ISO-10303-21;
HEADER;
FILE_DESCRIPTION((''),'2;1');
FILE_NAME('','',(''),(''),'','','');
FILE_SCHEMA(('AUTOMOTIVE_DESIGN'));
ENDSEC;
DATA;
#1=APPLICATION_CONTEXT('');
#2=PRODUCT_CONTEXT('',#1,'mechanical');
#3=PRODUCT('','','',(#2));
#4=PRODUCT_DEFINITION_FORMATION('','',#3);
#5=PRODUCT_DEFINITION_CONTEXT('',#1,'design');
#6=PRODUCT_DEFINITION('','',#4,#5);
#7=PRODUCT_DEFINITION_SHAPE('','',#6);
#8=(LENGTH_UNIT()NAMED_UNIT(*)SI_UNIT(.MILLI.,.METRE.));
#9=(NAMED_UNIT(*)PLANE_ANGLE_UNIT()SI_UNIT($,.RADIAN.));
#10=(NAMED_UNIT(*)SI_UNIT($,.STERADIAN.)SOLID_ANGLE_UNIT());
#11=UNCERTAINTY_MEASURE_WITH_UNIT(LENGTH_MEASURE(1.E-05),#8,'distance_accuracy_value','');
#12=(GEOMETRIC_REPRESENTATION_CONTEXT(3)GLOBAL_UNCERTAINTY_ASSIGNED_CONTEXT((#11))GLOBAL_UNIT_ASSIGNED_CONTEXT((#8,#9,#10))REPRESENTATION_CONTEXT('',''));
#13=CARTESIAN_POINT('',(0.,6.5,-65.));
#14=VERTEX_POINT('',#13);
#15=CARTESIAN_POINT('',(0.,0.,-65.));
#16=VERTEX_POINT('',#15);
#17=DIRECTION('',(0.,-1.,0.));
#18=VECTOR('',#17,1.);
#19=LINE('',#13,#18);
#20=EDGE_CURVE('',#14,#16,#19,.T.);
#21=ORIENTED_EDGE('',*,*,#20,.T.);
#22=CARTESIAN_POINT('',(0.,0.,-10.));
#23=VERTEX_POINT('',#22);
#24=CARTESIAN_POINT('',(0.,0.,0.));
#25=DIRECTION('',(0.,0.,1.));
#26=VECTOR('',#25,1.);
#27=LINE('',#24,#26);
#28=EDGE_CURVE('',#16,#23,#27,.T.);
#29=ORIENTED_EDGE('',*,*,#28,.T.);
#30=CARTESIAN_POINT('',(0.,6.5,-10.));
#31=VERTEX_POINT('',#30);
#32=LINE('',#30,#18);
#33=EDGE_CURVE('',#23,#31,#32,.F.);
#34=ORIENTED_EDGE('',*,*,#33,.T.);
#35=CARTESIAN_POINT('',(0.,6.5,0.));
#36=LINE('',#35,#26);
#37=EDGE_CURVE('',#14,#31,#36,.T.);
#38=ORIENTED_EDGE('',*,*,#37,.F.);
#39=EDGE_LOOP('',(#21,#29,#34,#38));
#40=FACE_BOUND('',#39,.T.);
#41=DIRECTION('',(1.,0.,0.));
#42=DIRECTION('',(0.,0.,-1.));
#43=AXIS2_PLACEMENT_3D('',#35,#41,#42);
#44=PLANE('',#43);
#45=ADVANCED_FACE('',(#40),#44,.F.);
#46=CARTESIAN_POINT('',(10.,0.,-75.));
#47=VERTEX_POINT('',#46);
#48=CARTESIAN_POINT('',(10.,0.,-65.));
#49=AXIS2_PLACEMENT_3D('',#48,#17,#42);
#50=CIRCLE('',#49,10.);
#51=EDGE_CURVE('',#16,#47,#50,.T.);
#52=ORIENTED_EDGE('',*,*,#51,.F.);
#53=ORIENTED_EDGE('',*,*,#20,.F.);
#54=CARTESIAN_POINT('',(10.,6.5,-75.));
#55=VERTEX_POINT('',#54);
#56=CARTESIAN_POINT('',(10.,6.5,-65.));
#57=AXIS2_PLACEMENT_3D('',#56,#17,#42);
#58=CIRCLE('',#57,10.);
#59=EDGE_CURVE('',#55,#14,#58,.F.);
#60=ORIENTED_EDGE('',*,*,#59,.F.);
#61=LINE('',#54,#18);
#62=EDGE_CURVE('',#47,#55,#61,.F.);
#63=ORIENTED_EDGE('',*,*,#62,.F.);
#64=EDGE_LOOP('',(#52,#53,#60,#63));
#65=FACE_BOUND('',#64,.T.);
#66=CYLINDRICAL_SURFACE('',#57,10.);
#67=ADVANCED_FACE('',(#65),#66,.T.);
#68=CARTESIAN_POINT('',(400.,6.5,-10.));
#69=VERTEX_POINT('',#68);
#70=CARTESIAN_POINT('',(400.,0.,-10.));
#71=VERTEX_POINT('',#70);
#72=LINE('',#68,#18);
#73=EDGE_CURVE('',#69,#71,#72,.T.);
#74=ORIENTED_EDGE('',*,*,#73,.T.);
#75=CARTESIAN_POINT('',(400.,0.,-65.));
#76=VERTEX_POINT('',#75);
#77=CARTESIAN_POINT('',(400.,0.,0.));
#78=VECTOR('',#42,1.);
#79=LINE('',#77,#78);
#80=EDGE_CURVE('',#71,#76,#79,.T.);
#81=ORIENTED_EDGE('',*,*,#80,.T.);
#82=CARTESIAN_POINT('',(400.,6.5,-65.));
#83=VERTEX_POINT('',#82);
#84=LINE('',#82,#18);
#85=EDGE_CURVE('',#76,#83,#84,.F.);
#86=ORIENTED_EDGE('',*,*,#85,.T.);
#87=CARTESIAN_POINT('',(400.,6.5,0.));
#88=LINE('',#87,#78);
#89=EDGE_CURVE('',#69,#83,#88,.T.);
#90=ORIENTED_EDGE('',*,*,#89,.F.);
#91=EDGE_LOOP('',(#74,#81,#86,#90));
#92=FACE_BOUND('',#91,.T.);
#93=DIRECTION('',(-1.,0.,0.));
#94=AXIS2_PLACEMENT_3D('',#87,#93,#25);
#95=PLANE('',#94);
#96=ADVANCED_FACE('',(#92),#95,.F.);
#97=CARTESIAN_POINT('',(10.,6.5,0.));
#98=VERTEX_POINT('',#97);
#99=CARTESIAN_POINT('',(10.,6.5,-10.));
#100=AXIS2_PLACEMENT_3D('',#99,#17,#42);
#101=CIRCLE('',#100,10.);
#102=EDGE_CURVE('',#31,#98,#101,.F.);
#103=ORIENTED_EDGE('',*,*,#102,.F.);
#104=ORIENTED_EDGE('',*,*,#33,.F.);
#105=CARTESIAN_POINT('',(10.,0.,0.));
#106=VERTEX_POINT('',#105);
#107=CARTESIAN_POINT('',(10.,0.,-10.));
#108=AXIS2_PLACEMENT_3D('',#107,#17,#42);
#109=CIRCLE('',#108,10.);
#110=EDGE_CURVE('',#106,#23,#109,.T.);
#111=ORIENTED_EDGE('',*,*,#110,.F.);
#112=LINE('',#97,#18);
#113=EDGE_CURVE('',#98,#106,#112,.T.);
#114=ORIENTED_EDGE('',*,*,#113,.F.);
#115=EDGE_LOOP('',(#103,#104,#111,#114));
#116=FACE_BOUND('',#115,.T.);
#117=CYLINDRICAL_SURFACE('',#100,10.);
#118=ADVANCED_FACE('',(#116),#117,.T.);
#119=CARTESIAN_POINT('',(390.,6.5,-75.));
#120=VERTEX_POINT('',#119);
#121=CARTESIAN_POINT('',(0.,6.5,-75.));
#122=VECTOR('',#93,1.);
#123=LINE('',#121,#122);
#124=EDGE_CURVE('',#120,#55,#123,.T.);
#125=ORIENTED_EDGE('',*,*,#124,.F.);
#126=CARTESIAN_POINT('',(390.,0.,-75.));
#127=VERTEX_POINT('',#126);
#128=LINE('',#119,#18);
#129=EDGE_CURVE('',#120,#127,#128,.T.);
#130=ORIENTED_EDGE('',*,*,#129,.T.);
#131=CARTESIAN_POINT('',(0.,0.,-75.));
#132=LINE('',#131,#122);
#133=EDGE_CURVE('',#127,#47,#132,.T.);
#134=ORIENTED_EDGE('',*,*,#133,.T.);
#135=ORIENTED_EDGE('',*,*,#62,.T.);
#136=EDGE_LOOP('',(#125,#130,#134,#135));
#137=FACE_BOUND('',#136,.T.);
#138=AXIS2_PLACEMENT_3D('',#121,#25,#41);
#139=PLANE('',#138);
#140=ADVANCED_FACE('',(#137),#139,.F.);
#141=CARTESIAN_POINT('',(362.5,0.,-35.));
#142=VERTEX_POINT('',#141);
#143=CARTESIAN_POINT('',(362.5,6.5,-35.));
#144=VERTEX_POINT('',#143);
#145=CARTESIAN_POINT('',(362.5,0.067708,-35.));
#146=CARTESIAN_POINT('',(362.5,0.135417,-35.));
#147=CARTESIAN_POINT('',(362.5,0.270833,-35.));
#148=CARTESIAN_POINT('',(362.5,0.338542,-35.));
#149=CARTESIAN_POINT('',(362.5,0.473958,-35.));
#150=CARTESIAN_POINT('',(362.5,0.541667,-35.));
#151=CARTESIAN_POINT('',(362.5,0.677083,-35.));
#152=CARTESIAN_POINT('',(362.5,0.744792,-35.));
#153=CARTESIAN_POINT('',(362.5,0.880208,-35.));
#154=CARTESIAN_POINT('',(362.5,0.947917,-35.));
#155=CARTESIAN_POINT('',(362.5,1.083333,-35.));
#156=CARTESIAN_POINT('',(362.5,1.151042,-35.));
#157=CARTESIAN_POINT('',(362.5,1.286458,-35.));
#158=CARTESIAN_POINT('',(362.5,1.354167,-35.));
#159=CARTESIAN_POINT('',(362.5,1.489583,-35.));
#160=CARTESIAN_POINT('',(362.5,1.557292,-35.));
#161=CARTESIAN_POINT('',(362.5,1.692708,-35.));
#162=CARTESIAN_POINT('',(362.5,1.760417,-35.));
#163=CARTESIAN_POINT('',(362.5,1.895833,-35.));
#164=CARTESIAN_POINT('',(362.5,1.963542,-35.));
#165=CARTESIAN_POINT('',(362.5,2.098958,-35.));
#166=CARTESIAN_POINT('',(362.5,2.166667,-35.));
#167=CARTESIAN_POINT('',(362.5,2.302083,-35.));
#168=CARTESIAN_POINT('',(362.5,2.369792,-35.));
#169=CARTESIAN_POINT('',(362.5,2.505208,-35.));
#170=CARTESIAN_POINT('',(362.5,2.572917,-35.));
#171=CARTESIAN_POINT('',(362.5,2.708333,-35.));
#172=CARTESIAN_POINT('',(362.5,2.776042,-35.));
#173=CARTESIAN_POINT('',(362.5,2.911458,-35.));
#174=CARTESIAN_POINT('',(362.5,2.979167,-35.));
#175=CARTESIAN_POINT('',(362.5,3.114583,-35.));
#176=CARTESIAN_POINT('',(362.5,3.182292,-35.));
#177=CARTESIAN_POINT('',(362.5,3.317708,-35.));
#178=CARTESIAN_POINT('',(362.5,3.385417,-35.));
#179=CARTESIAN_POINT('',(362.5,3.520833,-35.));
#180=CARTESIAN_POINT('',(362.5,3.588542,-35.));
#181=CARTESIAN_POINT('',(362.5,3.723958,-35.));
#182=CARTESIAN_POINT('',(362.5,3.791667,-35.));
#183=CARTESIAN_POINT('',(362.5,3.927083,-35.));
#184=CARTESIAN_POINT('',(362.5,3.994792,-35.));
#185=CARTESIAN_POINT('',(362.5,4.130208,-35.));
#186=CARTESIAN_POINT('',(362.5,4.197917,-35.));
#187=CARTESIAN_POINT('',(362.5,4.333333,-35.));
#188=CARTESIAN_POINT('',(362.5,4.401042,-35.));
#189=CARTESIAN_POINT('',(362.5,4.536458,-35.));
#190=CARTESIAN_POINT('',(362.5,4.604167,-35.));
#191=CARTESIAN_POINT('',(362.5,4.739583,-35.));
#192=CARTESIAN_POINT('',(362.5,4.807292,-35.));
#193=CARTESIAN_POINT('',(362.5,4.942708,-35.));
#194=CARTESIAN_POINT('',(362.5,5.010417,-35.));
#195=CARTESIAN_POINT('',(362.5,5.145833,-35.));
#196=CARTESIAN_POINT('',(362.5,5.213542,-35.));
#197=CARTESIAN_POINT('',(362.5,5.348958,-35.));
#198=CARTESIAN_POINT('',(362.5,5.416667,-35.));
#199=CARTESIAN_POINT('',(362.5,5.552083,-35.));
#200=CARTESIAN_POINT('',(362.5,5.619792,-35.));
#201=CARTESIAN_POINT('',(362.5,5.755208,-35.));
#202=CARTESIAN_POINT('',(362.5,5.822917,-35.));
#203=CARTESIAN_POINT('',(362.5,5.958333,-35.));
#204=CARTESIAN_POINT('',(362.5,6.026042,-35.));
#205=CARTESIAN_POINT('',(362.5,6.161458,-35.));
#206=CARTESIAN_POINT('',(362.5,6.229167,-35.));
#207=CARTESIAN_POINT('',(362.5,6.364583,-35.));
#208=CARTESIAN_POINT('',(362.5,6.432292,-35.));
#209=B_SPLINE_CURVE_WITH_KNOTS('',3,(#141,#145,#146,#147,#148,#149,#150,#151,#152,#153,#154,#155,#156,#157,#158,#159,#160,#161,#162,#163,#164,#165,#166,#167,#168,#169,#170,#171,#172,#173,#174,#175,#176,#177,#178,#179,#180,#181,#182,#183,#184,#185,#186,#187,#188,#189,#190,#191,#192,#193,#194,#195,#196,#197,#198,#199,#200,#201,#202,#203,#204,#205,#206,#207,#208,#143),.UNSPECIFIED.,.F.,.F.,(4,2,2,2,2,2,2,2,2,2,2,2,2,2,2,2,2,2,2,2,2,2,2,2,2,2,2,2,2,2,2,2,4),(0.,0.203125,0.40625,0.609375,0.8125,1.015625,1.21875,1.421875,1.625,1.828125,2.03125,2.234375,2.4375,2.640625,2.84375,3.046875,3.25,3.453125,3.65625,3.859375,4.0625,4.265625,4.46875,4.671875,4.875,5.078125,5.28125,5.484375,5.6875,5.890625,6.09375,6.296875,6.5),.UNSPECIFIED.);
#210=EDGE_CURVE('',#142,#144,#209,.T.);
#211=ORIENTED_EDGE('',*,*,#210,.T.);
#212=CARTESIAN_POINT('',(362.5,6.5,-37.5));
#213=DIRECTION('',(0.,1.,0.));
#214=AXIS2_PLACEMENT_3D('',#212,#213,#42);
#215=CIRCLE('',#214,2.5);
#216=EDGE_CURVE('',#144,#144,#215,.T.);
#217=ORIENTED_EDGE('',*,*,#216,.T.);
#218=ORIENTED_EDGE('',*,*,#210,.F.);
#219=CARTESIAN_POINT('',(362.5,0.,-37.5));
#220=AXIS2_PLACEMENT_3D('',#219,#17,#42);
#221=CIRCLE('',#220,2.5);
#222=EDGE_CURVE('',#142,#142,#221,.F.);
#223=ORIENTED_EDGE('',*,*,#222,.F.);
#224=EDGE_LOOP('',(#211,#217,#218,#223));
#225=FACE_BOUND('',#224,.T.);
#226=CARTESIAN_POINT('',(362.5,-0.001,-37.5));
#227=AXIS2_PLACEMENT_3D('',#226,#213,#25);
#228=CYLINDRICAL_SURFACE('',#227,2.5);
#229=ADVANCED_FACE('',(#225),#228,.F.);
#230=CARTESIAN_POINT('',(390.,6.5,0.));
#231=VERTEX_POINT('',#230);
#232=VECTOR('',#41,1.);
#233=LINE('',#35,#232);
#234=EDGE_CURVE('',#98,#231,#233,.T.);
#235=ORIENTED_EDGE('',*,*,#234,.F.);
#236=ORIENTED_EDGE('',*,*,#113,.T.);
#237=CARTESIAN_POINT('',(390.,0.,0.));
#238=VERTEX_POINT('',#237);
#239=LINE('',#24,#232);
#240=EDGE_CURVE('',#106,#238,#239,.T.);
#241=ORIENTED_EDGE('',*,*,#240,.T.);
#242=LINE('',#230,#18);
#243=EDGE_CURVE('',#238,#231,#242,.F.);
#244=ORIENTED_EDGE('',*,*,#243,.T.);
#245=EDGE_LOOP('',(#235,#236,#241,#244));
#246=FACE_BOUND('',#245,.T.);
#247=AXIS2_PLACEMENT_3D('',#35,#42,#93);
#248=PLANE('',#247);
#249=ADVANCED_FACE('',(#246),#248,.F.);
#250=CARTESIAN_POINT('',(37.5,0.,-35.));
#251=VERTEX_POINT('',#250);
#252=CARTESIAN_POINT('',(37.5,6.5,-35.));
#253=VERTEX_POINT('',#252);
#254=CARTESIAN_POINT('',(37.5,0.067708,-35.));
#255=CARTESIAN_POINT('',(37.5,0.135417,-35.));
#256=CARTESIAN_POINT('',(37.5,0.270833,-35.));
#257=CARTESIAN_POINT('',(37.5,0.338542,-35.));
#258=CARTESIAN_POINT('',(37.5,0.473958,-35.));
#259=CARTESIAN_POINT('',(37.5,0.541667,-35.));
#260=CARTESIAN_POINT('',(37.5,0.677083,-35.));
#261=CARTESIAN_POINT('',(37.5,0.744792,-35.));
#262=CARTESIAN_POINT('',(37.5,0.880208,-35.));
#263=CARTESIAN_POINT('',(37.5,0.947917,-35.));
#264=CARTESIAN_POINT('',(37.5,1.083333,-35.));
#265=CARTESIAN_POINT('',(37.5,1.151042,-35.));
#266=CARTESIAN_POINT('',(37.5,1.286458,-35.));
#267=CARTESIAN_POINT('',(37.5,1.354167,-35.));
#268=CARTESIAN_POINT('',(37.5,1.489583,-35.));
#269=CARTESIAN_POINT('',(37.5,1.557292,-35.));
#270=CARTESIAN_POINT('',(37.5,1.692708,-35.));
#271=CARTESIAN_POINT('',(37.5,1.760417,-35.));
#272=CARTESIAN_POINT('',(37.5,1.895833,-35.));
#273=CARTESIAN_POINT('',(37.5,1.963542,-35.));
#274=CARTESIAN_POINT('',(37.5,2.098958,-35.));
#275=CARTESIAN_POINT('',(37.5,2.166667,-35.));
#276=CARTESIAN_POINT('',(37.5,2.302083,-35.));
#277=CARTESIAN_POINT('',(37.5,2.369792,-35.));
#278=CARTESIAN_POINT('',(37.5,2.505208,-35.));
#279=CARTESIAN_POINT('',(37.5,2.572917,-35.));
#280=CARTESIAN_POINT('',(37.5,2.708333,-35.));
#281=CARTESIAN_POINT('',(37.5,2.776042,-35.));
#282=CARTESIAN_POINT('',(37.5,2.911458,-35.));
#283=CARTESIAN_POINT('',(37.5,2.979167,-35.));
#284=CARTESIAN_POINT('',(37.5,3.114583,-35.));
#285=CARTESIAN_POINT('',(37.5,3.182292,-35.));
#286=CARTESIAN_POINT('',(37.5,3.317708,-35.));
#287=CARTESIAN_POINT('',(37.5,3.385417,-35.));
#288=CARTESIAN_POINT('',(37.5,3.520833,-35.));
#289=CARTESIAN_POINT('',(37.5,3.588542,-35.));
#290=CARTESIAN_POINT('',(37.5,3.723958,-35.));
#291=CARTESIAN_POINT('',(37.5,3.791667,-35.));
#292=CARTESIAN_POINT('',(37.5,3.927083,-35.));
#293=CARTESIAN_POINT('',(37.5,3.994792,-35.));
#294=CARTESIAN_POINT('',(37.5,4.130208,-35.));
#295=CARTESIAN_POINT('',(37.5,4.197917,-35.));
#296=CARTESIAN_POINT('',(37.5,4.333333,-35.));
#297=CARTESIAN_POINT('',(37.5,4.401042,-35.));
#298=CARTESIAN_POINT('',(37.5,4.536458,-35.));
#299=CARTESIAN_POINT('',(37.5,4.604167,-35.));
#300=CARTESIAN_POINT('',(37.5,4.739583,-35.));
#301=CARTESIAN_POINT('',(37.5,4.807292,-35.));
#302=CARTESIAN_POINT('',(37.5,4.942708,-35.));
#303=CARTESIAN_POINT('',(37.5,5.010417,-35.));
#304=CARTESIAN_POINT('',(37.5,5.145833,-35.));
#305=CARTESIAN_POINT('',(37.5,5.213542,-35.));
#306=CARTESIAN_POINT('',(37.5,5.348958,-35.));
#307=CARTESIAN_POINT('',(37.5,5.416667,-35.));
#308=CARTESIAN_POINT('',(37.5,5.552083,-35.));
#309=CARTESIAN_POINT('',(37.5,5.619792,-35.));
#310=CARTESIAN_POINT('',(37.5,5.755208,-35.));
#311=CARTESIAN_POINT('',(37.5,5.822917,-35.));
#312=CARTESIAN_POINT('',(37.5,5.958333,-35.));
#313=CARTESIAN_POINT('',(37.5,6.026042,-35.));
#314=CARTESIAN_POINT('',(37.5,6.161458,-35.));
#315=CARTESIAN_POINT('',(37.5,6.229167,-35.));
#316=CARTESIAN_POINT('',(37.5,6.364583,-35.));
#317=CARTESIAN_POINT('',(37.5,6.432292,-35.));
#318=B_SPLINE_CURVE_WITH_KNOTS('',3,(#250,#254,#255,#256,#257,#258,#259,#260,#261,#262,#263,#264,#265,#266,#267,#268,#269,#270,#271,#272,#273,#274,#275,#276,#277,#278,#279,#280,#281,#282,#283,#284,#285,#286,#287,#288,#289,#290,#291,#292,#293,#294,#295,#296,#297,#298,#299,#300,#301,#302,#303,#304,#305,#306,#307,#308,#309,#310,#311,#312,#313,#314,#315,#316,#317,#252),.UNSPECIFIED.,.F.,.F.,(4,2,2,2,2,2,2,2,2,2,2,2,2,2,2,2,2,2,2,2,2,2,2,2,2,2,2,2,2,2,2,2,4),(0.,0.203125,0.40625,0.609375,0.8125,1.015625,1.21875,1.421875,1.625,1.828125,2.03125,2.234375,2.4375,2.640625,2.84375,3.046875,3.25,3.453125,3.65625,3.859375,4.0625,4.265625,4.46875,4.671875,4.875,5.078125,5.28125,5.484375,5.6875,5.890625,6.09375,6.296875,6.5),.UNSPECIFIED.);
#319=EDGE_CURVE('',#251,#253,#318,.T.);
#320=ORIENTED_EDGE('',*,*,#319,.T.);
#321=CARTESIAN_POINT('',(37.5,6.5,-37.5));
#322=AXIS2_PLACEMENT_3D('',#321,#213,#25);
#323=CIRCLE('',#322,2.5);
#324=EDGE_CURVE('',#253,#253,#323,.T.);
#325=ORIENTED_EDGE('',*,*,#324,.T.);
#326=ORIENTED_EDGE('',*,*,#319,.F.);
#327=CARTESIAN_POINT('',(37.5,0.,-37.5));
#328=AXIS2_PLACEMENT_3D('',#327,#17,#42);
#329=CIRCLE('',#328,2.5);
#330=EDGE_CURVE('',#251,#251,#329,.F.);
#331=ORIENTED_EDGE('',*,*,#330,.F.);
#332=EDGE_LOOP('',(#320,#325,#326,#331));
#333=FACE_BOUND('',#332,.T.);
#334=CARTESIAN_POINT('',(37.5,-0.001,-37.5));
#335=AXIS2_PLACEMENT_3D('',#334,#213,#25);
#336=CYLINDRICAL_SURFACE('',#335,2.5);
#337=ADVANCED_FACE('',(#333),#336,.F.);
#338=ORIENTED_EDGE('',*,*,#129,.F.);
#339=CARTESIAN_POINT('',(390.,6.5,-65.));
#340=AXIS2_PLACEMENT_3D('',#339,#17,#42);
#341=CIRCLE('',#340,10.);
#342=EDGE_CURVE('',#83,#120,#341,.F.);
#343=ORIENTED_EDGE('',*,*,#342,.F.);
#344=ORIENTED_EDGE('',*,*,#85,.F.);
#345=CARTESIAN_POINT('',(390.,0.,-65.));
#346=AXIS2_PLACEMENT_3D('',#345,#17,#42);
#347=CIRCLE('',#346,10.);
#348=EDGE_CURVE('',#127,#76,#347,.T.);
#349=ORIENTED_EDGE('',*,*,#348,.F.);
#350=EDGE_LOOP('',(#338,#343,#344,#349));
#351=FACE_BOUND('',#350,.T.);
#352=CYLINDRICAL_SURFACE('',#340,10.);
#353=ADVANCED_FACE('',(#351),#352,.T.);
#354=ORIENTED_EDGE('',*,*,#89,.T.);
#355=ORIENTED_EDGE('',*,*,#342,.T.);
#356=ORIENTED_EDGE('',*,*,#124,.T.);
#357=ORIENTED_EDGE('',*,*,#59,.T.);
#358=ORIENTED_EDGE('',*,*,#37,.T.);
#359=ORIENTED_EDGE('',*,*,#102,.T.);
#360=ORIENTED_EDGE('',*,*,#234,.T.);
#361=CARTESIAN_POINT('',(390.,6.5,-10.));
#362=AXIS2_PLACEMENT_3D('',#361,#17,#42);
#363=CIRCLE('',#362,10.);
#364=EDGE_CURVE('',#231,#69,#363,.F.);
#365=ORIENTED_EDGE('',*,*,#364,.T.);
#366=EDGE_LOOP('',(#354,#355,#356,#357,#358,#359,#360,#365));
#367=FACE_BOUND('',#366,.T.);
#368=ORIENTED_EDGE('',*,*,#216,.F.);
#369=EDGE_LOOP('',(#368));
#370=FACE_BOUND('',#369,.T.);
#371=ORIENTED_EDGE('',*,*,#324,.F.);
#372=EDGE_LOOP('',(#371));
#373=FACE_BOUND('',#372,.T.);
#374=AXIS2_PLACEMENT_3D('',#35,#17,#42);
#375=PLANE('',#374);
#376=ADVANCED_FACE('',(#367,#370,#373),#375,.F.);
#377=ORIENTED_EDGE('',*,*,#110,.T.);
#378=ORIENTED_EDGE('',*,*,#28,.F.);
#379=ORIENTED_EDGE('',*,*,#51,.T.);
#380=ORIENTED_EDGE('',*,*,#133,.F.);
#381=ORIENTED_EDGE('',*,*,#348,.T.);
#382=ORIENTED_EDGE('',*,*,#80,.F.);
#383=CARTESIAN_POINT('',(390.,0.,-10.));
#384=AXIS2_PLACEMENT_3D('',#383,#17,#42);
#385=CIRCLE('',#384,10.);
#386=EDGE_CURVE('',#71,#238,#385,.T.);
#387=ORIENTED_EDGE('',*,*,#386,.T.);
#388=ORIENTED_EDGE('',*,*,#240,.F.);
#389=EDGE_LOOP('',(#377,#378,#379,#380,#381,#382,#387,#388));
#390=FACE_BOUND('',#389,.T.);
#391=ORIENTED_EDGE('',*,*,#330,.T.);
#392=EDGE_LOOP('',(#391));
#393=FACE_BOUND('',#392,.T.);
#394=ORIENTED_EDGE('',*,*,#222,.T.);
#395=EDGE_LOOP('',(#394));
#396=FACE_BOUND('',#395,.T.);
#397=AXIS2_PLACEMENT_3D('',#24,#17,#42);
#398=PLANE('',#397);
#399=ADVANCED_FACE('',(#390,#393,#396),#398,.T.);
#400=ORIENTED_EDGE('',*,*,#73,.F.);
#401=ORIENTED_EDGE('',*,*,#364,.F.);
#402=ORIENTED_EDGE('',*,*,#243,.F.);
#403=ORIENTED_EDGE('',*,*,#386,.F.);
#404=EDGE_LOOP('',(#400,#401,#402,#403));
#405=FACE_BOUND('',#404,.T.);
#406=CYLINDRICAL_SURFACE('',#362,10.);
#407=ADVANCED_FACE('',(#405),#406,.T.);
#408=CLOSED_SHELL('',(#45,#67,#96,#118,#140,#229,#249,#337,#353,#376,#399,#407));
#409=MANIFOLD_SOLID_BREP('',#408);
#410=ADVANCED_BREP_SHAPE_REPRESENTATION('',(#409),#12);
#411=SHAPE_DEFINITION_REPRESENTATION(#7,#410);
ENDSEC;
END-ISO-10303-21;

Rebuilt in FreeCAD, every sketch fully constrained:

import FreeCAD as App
import Part
import Sketcher

V = App.Vector
Q = App.Units.Quantity


def edges_at(feature, points):
    """Names of the edges that pass closest to the given points."""
    edges = feature.Shape.Edges
    near = lambda p: min(range(len(edges)), key=lambda i: edges[i].distToShape(Part.Vertex(*p))[0])
    return sorted({f"Edge{near(p) + 1}" for p in points})

doc = App.newDocument("Part")
body = doc.addObject("PartDesign::Body", "Body")

sketch1 = body.newObject("Sketcher::SketchObject", "Sketch")
sketch1.AttachmentSupport = (doc.getObject("XZ_Plane"), [""])
sketch1.MapMode = "FlatFace"
sketch1.addGeometry([
    Part.LineSegment(V(0, -75, 0), V(0, 0, 0)),
    Part.LineSegment(V(0, 0, 0), V(400, 0, 0)),
    Part.LineSegment(V(400, 0, 0), V(400, -75, 0)),
    Part.LineSegment(V(400, -75, 0), V(0, -75, 0)),
], False)
sketch1.addConstraint([
    Sketcher.Constraint("Coincident", 0, 2, 1, 1),
    Sketcher.Constraint("Coincident", 1, 2, 2, 1),
    Sketcher.Constraint("Coincident", 2, 2, 3, 1),
    Sketcher.Constraint("Coincident", 3, 2, 0, 1),
    Sketcher.Constraint("Vertical", 0),
    Sketcher.Constraint("Horizontal", 1),
    Sketcher.Constraint("Vertical", 2),
    Sketcher.Constraint("Horizontal", 3),
    Sketcher.Constraint("Coincident", 0, 2, -1, 1),
    Sketcher.Constraint("DistanceX", 1, 1, 1, 2, Q("400 mm")),
    Sketcher.Constraint("DistanceY", 0, 1, 0, 2, Q("75 mm")),
])
pad1 = body.newObject("PartDesign::Pad", "Pad")
pad1.Profile = sketch1
pad1.Length = 6.5
pad1.Reversed = True
doc.recompute()

fillet = body.newObject("PartDesign::Fillet", "Fillet")
fillet.Base = (pad1, edges_at(pad1, [
    (0, 3.25, -75),
    (400, 3.25, -75),
    (400, 3.25, 0),
    (0, 3.25, 0),
]))
fillet.Radius = 10

sketch2 = body.newObject("Sketcher::SketchObject", "Sketch001")
sketch2.AttachmentSupport = (doc.getObject("XZ_Plane"), [""])
sketch2.MapMode = "FlatFace"
sketch2.AttachmentOffset = App.Placement(V(0, 0, -6.5), App.Rotation())
sketch2.addGeometry(Part.Circle(V(37.5, -37.5, 0), V(0, 0, 1), 2.5), False)
sketch2.addConstraint([
    Sketcher.Constraint("Diameter", 0, Q("5 mm")),
    Sketcher.Constraint("DistanceX", -1, 1, 0, 3, Q("37.5 mm")),
    Sketcher.Constraint("DistanceY", 0, 3, -1, 1, Q("37.5 mm")),
])
pocket1 = body.newObject("PartDesign::Pocket", "Pocket")
pocket1.Profile = sketch2
pocket1.Type = "UpToFirst"
pocket1.Reversed = True

sketch3 = body.newObject("Sketcher::SketchObject", "Sketch002")
sketch3.AttachmentSupport = (doc.getObject("XZ_Plane"), [""])
sketch3.MapMode = "FlatFace"
sketch3.AttachmentOffset = App.Placement(V(0, 0, -6.5), App.Rotation())
sketch3.addGeometry(Part.Circle(V(362.5, -37.5, 0), V(0, 0, 1), 2.5), False)
sketch3.addConstraint([
    Sketcher.Constraint("Diameter", 0, Q("5 mm")),
    Sketcher.Constraint("DistanceX", -1, 1, 0, 3, Q("362.5 mm")),
    Sketcher.Constraint("DistanceY", 0, 3, -1, 1, Q("37.5 mm")),
])
pocket2 = body.newObject("PartDesign::Pocket", "Pocket001")
pocket2.Profile = sketch3
pocket2.Type = "UpToFirst"
pocket2.Reversed = True

doc.recompute()
